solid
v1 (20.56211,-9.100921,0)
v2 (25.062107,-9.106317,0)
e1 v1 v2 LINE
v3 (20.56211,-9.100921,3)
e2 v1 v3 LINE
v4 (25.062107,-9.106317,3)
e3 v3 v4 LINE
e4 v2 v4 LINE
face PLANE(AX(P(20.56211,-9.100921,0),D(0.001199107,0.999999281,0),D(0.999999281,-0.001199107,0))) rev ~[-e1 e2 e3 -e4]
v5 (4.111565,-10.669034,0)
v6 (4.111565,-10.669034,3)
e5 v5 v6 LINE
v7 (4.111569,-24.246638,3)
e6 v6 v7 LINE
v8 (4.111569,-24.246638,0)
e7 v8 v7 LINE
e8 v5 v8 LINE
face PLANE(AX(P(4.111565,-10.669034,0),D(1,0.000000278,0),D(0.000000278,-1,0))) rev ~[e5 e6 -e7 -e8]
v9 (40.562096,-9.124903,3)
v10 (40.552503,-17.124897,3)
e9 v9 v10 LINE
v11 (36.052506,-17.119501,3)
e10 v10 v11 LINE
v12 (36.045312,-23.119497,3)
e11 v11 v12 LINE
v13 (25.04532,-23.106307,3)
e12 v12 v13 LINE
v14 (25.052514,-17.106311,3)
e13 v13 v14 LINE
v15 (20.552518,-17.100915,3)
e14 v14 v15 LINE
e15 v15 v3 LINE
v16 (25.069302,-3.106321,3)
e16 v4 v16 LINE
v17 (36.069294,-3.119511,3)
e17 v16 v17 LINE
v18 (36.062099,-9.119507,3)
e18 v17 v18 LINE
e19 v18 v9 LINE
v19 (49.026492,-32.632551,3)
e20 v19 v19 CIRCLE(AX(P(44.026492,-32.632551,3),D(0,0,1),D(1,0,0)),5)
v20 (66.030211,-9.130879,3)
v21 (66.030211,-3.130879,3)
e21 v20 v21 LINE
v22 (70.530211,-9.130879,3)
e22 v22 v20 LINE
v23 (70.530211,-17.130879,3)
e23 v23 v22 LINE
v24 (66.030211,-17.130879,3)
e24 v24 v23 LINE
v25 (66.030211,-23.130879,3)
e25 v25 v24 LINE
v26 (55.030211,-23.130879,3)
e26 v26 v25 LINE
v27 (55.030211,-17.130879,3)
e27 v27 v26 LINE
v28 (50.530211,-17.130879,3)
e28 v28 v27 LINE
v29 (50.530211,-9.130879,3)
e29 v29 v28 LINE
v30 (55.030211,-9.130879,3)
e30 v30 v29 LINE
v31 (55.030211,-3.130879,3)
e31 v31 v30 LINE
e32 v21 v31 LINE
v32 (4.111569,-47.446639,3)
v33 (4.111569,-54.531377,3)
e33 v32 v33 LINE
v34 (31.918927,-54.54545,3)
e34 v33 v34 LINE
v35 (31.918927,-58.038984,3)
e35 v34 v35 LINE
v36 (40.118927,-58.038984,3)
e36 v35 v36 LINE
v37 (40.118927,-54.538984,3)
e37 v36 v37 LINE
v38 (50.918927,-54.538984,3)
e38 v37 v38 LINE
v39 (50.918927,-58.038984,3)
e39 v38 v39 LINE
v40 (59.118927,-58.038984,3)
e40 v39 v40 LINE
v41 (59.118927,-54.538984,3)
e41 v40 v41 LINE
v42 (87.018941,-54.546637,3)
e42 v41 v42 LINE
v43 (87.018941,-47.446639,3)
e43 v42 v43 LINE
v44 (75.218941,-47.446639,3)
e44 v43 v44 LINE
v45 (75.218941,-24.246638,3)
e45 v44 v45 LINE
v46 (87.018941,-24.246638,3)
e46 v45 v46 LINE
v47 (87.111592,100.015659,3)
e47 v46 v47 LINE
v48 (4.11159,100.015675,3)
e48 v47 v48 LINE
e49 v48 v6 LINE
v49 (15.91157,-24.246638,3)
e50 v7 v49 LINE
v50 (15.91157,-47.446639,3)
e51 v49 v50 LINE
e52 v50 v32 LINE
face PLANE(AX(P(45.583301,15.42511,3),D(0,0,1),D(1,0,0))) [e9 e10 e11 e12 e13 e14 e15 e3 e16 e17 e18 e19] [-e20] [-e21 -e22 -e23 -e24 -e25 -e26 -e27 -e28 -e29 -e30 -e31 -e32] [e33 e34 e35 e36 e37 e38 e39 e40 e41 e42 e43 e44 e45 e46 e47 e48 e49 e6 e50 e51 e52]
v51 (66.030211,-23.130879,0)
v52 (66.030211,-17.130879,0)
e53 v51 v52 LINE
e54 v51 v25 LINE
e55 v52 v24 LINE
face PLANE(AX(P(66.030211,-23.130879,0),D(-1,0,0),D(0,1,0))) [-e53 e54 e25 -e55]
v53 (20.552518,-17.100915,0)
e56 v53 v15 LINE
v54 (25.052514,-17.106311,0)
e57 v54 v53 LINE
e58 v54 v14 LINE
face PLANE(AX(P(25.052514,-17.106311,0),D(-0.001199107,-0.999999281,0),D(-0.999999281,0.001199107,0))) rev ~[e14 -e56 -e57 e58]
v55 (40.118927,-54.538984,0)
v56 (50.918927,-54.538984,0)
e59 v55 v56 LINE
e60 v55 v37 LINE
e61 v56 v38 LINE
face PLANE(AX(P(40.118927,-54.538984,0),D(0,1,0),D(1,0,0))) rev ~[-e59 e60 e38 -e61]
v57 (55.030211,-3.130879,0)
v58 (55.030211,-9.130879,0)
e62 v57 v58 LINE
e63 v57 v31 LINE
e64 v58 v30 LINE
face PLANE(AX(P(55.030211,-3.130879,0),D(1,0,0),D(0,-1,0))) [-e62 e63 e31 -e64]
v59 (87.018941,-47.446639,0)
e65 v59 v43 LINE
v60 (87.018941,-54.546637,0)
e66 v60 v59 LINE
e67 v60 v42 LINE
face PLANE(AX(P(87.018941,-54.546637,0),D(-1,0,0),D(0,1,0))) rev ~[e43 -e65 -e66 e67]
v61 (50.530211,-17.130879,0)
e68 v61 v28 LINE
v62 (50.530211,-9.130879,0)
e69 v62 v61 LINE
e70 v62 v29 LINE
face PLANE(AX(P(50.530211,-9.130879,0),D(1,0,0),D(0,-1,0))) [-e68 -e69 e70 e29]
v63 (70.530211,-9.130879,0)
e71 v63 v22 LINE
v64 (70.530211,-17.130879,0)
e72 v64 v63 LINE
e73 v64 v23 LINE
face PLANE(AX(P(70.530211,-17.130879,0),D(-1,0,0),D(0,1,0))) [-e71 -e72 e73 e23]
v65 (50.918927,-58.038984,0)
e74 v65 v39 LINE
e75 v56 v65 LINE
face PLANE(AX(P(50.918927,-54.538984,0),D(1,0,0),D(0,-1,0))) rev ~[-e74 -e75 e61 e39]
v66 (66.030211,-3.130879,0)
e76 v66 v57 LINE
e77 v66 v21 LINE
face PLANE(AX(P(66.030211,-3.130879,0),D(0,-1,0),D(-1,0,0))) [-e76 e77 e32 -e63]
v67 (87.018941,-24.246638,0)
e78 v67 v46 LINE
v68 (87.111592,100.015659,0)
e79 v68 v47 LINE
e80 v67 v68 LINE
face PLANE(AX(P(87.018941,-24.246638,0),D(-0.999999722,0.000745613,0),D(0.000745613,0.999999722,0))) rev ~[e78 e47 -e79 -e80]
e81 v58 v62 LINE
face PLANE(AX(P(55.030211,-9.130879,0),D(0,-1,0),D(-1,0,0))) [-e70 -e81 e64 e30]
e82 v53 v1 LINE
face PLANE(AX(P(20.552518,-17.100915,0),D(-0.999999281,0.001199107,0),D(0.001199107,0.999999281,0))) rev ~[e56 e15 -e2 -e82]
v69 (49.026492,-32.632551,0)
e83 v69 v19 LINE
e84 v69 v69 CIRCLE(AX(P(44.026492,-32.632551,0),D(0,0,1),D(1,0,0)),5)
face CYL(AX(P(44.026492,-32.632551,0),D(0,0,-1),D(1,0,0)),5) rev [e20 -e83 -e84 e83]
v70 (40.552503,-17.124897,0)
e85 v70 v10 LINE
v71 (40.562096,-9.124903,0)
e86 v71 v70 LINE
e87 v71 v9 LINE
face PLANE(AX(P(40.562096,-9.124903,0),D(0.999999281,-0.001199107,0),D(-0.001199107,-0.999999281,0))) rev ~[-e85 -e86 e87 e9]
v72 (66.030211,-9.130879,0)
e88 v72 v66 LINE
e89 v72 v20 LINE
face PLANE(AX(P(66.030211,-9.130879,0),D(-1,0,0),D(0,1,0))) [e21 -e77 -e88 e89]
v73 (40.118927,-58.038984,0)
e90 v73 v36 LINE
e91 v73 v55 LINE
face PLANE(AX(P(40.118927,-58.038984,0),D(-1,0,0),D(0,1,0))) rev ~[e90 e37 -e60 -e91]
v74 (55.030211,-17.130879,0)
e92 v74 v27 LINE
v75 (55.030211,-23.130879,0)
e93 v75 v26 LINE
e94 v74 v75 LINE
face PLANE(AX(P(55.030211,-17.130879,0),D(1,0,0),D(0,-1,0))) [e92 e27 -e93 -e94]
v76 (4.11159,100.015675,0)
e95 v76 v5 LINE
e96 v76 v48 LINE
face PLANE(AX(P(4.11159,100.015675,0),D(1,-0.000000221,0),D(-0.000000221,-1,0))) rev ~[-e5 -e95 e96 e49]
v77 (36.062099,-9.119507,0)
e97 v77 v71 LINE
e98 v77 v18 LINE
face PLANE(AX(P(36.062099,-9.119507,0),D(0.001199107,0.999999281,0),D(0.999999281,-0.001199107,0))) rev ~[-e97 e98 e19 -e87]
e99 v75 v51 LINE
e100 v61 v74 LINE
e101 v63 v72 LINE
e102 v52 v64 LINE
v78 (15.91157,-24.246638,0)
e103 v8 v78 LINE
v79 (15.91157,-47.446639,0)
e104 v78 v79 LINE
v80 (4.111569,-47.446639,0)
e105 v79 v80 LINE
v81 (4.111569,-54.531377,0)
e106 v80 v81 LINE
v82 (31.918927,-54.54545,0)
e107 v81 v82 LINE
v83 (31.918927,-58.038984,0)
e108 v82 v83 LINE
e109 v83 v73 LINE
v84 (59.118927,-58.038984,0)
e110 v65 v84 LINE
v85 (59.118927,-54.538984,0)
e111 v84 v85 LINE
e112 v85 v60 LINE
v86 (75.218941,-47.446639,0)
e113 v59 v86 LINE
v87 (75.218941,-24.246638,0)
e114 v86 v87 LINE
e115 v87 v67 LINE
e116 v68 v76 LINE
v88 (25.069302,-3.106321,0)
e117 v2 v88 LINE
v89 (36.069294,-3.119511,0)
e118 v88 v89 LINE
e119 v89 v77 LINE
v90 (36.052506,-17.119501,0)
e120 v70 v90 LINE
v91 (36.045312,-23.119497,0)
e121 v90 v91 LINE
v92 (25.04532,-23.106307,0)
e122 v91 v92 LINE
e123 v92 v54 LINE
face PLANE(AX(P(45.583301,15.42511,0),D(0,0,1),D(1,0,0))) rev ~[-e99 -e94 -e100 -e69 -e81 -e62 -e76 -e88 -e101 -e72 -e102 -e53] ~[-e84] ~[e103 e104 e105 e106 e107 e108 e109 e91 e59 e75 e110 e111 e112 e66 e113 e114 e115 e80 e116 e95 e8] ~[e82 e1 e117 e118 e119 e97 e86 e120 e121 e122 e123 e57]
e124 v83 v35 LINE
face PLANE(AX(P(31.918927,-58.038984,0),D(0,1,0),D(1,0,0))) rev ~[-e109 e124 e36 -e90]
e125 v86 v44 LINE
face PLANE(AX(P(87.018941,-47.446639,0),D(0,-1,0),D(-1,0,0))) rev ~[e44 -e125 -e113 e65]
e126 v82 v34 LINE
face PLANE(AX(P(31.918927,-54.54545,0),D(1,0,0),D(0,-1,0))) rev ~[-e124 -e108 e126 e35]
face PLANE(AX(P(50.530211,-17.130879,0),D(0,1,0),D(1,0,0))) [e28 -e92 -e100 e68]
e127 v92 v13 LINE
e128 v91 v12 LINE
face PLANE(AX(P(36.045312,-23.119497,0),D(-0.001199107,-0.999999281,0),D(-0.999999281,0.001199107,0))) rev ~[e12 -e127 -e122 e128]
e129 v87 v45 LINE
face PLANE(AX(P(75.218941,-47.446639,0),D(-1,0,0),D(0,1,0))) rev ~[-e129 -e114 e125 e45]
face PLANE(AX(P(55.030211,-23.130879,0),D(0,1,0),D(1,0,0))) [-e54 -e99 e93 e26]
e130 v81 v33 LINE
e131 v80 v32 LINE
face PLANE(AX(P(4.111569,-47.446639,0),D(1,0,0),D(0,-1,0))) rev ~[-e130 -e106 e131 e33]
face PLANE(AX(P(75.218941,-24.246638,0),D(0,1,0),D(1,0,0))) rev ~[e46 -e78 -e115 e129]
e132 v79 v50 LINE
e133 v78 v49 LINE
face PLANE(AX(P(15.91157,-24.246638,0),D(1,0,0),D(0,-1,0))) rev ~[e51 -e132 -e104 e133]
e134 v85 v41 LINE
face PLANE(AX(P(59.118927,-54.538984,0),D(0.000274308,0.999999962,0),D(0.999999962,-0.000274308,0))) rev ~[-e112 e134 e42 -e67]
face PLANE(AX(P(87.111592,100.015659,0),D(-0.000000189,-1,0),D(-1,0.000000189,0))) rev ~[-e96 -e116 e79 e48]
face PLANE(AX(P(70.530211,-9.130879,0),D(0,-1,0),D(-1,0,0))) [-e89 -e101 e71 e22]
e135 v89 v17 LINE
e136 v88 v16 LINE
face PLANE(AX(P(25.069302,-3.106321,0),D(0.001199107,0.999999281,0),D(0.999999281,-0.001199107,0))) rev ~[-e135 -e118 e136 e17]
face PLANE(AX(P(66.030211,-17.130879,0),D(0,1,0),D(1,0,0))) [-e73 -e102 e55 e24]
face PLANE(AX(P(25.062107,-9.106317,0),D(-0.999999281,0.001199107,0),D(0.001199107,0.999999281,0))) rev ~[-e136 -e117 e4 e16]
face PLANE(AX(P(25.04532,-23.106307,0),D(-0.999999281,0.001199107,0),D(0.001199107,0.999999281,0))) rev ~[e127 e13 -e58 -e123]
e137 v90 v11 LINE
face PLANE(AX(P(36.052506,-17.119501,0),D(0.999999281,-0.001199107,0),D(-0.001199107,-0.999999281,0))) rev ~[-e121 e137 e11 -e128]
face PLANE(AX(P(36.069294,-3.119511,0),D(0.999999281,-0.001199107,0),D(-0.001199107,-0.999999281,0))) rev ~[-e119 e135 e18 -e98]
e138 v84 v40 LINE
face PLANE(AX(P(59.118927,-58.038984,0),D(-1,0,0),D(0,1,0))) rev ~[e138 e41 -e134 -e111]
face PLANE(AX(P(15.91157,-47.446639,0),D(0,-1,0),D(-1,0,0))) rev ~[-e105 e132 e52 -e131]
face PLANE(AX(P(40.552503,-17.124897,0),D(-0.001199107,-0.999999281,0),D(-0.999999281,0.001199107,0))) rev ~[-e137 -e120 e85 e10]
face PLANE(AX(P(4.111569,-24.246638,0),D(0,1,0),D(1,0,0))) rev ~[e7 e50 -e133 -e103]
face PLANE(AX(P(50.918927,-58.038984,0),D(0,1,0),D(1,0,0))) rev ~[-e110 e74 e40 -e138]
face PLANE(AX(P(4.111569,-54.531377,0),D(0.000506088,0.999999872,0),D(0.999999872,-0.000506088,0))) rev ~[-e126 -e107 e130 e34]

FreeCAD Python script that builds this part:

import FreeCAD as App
import Part
import Sketcher

V = App.Vector
Q = App.Units.Quantity


def add_polygon(sketch, points):
    """Adds a closed chain of lines whose ends are joined by coincident constraints."""
    first, n = sketch.GeometryCount, len(points)
    for a, b in zip(points, points[1:] + points[:1]):
        sketch.addGeometry(Part.LineSegment(App.Vector(*a, 0), App.Vector(*b, 0)), False)
    for i in range(n):
        sketch.addConstraint(Sketcher.Constraint("Coincident", first + i, 2, first + (i + 1) % n, 1))

doc = App.newDocument("Part")
body = doc.addObject("PartDesign::Body", "Body")

# Sketch on XY plane
sketch1 = body.newObject("Sketcher::SketchObject", "Sketch")
sketch1.AttachmentSupport = (doc.getObject("XY_Plane"), [""])
sketch1.MapMode = "FlatFace"
add_polygon(sketch1, [(4.1, 100), (4.1, -10.7), (4.1, -24.2), (15.9, -24.2), (15.9, -47.4), (4.1, -47.4), (4.1, -54.5), (31.9, -54.5), (31.9, -58), (40.1, -58), (40.1, -54.5), (50.9, -54.5), (50.9, -58), (59.1, -58), (59.1, -54.5), (87, -54.5), (87, -47.4), (75.2, -47.4), (75.2, -24.2), (87, -24.2), (87.1, 100)])  # lines 0-20
sketch1.addGeometry(Part.Circle(V(44, -32.6, 0), V(0, 0, 1), 5), False)  # 21
add_polygon(sketch1, [(36, -23.1), (25, -23.1), (25.1, -17.1), (20.6, -17.1), (20.6, -9.1), (25.1, -9.1), (25.1, -3.1), (36.1, -3.1), (36.1, -9.1), (40.6, -9.1), (40.6, -17.1), (36.1, -17.1)])  # lines 22-33
add_polygon(sketch1, [(66, -17.1), (66, -23.1), (55, -23.1), (55, -17.1), (50.5, -17.1), (50.5, -9.1), (55, -9.1), (55, -3.1), (66, -3.1), (66, -9.1), (70.5, -9.1), (70.5, -17.1)])  # lines 34-45
sketch1.addConstraint([
    Sketcher.Constraint("Horizontal", 2),
    Sketcher.Constraint("Vertical", 3),
    Sketcher.Constraint("Horizontal", 4),
    Sketcher.Constraint("Vertical", 5),
    Sketcher.Constraint("Vertical", 7),
    Sketcher.Constraint("Horizontal", 8),
    Sketcher.Constraint("Vertical", 9),
    Sketcher.Constraint("Horizontal", 10),
    Sketcher.Constraint("Vertical", 11),
    Sketcher.Constraint("Horizontal", 12),
    Sketcher.Constraint("Vertical", 13),
    Sketcher.Constraint("Vertical", 15),
    Sketcher.Constraint("Horizontal", 16),
    Sketcher.Constraint("Vertical", 17),
    Sketcher.Constraint("Horizontal", 18),
    Sketcher.Constraint("Vertical", 34),
    Sketcher.Constraint("Horizontal", 35),
    Sketcher.Constraint("Vertical", 36),
    Sketcher.Constraint("Horizontal", 37),
    Sketcher.Constraint("Vertical", 38),
    Sketcher.Constraint("Horizontal", 39),
    Sketcher.Constraint("Vertical", 40),
    Sketcher.Constraint("Horizontal", 41),
    Sketcher.Constraint("Vertical", 42),
    Sketcher.Constraint("Horizontal", 43),
    Sketcher.Constraint("Vertical", 44),
    Sketcher.Constraint("Horizontal", 45),
    Sketcher.Constraint("Parallel", 0, 1),
    Sketcher.Constraint("Perpendicular", 1, 20),
    Sketcher.Constraint("Perpendicular", 22, 23),
    Sketcher.Constraint("Perpendicular", 23, 24),
    Sketcher.Constraint("Perpendicular", 24, 25),
    Sketcher.Constraint("Perpendicular", 25, 26),
    Sketcher.Constraint("Perpendicular", 26, 27),
    Sketcher.Constraint("Perpendicular", 27, 28),
    Sketcher.Constraint("Perpendicular", 28, 29),
    Sketcher.Constraint("Perpendicular", 29, 30),
    Sketcher.Constraint("Perpendicular", 30, 31),
    Sketcher.Constraint("Perpendicular", 31, 32),
    Sketcher.Constraint("Perpendicular", 32, 33),
    Sketcher.Constraint("Horizontal", 8, 2, 11, 2),
    Sketcher.Constraint("Horizontal", 10, 2, 13, 2),
    Sketcher.Constraint("Horizontal", 4, 2, 15, 2),
    Sketcher.Constraint("Horizontal", 2, 2, 17, 2),
    Sketcher.Constraint("Horizontal", 39, 2, 42, 2),
    Sketcher.Constraint("Horizontal", 37, 2, 44, 2),
    Sketcher.Constraint("Vertical", 1, 2, 4, 2),
    Sketcher.Constraint("Vertical", 15, 2, 18, 2),
    Sketcher.Constraint("Vertical", 36, 2, 39, 2),
    Sketcher.Constraint("Vertical", 34, 2, 41, 2),
    Sketcher.Constraint("Equal", 8, 12),
    Sketcher.Constraint("Equal", 4, 16),
    Sketcher.Constraint("Equal", 39, 43),
    Sketcher.Constraint("Equal", 36, 40),
    Sketcher.Constraint("Equal", 24, 26),
    Sketcher.Constraint("Equal", 23, 27),
    Sketcher.Constraint("Equal", 22, 28),
    Sketcher.Constraint("Equal", 27, 29),
    Sketcher.Constraint("Equal", 26, 30),
    Sketcher.Constraint("Equal", 25, 31),
    Sketcher.Constraint("Diameter", 21, Q("10 mm")),
    Sketcher.Constraint("DistanceX", 35, 2, 35, 1, Q("11 mm")),
    Sketcher.Constraint("DistanceY", 34, 2, 34, 1, Q("6 mm")),
    Sketcher.Constraint("DistanceY", 38, 1, 38, 2, Q("8 mm")),
    Sketcher.Constraint("Angle", 0, Q("-90.000013 deg")),
    Sketcher.Constraint("Distance", 22, Q("11 mm")),
    Sketcher.Constraint("Distance", 23, Q("6 mm")),
    Sketcher.Constraint("Distance", 25, Q("8 mm")),
    Sketcher.Constraint("DistanceX", 2, 1, 2, 2, Q("11.800001 mm")),
    Sketcher.Constraint("DistanceX", 8, 1, 8, 2, Q("8.2 mm")),
    Sketcher.Constraint("DistanceX", 10, 1, 10, 2, Q("10.8 mm")),
    Sketcher.Constraint("DistanceX", 37, 2, 37, 1, Q("4.5 mm")),
    Sketcher.Constraint("DistanceY", 3, 2, 3, 1, Q("23.200001 mm")),
    Sketcher.Constraint("DistanceY", 9, 1, 9, 2, Q("3.5 mm")),
    Sketcher.Constraint("Distance", 24, Q("4.5 mm")),
    Sketcher.Constraint("DistanceY", 14, 2, 17, 2, Q("30.299999 mm")),
    Sketcher.Constraint("DistanceY", 5, 2, 5, 1, Q("7.084739 mm")),
    Sketcher.Constraint("DistanceX", -1, 1, 27, 2, Q("25.069302 mm")),
    Sketcher.Constraint("DistanceX", -1, 1, 29, 2, Q("36.062099 mm")),
    Sketcher.Constraint("DistanceY", 32, 2, -1, 1, Q("17.119501 mm")),
    Sketcher.Constraint("DistanceY", 6, 2, 21, 3, Q("21.9129 mm")),
    Sketcher.Constraint("DistanceX", 21, 3, 19, 2, Q("43.0851 mm")),
    Sketcher.Constraint("DistanceX", 33, 2, 35, 2, Q("18.9849 mm")),
    Sketcher.Constraint("Distance", 0, Q("110.684709 mm")),
    Sketcher.Constraint("Distance", 19, Q("124.262332 mm")),
    Sketcher.Constraint("DistanceY", 7, 2, 7, 1, Q("3.493533 mm")),
    Sketcher.Constraint("DistanceX", -1, 1, 21, 3, Q("44.026492 mm")),
    Sketcher.Constraint("DistanceY", 21, 3, -1, 1, Q("32.632551 mm")),
    Sketcher.Constraint("DistanceX", -1, 1, 1, 2, Q("4.111569 mm")),
    Sketcher.Constraint("DistanceY", 3, 2, -1, 1, Q("47.446639 mm")),
    Sketcher.Constraint("DistanceX", -1, 1, 14, 2, Q("87.018941 mm")),
    Sketcher.Constraint("DistanceY", 34, 2, -1, 1, Q("23.130879 mm")),
    Sketcher.Constraint("DistanceX", 5, 2, 6, 2, Q("27.807359 mm")),
])
pad1 = body.newObject("PartDesign::Pad", "Pad")
pad1.Profile = sketch1
pad1.Length = 3

doc.recompute()
